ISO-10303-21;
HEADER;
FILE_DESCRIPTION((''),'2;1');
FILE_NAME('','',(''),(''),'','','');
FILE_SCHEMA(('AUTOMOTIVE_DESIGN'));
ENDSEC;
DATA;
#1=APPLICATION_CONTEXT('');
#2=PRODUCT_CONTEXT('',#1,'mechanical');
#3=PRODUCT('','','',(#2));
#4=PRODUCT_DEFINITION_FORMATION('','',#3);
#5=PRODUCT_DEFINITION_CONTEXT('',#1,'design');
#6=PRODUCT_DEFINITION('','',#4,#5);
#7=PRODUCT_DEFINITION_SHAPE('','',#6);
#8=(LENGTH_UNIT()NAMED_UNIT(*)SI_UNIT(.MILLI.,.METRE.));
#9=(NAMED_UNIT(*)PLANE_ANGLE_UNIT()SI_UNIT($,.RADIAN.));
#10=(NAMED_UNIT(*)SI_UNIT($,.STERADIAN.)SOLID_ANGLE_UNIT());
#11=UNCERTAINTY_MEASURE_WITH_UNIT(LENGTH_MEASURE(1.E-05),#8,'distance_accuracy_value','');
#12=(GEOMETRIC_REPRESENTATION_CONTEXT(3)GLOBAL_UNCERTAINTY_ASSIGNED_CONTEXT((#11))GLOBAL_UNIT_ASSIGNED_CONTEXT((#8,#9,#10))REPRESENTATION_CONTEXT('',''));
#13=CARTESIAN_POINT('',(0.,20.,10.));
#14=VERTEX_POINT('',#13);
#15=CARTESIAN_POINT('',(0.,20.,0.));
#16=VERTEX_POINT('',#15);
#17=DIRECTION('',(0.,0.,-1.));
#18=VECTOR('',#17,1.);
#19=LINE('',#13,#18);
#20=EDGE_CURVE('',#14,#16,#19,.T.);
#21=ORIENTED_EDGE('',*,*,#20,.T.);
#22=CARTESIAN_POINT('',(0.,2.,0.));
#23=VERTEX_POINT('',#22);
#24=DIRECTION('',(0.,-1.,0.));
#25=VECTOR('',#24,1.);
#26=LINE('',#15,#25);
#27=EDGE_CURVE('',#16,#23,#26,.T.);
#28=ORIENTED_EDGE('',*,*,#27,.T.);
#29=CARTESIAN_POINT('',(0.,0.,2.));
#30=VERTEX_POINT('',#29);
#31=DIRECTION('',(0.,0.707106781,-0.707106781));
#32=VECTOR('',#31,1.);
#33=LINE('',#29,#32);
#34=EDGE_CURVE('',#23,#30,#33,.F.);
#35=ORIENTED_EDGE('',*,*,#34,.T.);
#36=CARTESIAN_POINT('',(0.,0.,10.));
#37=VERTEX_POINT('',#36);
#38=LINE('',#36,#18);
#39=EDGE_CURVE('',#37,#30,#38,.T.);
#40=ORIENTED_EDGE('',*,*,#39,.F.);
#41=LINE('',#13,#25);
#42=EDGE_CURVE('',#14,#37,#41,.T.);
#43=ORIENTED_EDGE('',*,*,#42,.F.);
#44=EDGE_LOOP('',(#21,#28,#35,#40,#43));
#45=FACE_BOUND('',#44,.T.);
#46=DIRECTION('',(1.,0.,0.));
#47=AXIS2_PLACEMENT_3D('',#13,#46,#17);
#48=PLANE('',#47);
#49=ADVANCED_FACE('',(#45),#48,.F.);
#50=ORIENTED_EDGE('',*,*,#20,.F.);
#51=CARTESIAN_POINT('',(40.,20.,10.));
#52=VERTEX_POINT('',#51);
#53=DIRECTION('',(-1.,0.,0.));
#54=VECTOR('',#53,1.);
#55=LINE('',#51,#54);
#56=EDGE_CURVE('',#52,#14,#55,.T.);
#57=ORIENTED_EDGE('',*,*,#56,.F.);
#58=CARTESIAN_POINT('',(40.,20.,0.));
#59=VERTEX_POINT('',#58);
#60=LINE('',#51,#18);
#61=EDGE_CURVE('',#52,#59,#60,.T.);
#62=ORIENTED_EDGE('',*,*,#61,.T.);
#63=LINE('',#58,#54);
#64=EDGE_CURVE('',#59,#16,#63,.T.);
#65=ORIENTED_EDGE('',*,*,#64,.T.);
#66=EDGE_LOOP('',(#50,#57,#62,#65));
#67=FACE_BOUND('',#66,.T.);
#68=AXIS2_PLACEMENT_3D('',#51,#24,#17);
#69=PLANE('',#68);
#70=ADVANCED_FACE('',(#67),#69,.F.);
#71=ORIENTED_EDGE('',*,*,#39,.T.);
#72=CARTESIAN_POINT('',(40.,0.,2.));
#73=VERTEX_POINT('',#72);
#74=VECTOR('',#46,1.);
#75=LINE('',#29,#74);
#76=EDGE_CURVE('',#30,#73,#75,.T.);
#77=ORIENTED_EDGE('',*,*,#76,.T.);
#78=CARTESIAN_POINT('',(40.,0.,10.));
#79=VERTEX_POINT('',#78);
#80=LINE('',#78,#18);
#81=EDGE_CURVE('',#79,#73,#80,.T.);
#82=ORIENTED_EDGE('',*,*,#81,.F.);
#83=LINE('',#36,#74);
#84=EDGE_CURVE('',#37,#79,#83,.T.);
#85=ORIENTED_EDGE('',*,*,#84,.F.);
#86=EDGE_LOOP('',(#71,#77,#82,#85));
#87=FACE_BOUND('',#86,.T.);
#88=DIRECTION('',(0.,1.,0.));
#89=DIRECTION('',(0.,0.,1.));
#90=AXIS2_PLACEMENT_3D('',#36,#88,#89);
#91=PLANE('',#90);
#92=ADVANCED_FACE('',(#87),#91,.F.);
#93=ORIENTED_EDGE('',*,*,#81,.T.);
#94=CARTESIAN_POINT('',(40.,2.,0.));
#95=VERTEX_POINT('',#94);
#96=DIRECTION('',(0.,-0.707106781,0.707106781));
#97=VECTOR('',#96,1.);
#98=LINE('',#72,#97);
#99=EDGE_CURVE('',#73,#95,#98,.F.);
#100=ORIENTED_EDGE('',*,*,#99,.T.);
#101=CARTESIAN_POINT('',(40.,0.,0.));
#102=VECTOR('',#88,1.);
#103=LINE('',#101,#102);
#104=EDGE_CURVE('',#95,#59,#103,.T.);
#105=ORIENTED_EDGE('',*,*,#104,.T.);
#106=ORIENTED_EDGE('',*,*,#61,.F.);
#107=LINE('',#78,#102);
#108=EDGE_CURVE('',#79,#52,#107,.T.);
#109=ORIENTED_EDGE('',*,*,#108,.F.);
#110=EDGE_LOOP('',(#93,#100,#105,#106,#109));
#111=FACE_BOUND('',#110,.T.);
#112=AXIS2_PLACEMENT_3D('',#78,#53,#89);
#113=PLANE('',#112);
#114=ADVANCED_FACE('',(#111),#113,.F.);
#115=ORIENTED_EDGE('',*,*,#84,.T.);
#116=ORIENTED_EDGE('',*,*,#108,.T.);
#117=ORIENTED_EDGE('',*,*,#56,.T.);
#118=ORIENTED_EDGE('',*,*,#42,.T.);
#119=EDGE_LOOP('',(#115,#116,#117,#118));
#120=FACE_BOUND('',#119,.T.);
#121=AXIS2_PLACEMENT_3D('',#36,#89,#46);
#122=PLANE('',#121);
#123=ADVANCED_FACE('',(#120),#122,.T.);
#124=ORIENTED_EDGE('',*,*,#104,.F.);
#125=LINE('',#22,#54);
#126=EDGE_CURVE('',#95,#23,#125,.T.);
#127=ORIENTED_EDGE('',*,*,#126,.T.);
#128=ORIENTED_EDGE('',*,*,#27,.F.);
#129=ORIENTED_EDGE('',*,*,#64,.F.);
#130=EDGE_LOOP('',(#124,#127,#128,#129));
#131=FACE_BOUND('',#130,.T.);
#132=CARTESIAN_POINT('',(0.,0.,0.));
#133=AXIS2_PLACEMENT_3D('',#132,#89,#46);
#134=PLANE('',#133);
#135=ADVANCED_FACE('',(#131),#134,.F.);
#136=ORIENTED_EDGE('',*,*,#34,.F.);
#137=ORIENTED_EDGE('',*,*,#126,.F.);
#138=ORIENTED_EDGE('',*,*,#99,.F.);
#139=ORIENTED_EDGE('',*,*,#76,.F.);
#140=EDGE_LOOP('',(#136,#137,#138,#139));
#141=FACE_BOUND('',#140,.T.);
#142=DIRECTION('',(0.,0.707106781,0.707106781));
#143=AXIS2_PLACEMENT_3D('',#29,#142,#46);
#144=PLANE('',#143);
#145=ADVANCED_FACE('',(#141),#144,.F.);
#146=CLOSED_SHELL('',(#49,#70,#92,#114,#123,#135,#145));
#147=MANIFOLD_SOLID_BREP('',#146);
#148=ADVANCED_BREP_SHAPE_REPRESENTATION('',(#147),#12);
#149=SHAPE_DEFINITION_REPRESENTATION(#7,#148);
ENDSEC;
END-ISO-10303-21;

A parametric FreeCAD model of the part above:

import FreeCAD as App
import Part
import Sketcher
Q = App.Units.Quantity


def edges_at(feature, points):
    """Names of the edges that pass closest to the given points."""
    edges = feature.Shape.Edges
    near = lambda p: min(range(len(edges)), key=lambda i: edges[i].distToShape(Part.Vertex(*p))[0])
    return sorted({f"Edge{near(p) + 1}" for p in points})


def add_polygon(sketch, points):
    """Adds a closed chain of lines whose ends are joined by coincident constraints."""
    first, n = sketch.GeometryCount, len(points)
    for a, b in zip(points, points[1:] + points[:1]):
        sketch.addGeometry(Part.LineSegment(App.Vector(*a, 0), App.Vector(*b, 0)), False)
    for i in range(n):
        sketch.addConstraint(Sketcher.Constraint("Coincident", first + i, 2, first + (i + 1) % n, 1))

doc = App.newDocument("Part")
params = doc.addObject("Spreadsheet::Sheet", "Params")
for row, (alias, value) in enumerate([
    ("sketch1_width", "40 mm"),
    ("sketch1_height", "20 mm"),
    ("pad1_length", "10 mm"),
    ("chamfer_size", "2 mm"),
], start=1):
    params.set(f"A{row}", alias)
    params.set(f"B{row}", "=" + value)
    params.setAlias(f"B{row}", alias)

body = doc.addObject("PartDesign::Body", "Body")

# Sketch on XY plane
sketch1 = body.newObject("Sketcher::SketchObject", "Sketch")
sketch1.AttachmentSupport = (doc.getObject("XY_Plane"), [""])
sketch1.MapMode = "FlatFace"
add_polygon(sketch1, [(0, 20), (0, 0), (40, 0), (40, 20)])  # lines 0-3
sketch1.addConstraint([
    Sketcher.Constraint("Vertical", 0),
    Sketcher.Constraint("Horizontal", 1),
    Sketcher.Constraint("Vertical", 2),
    Sketcher.Constraint("Horizontal", 3),
    Sketcher.Constraint("Coincident", 0, 2, -1, 1),
    Sketcher.Constraint("DistanceX", 1, 1, 1, 2, Q("40 mm")),
    Sketcher.Constraint("DistanceY", 0, 2, 0, 1, Q("20 mm")),
])
sketch1.setExpression("Constraints[9]", "Params.sketch1_width")
sketch1.setExpression("Constraints[10]", "Params.sketch1_height")
pad1 = body.newObject("PartDesign::Pad", "Pad")
pad1.Profile = sketch1
pad1.setExpression("Length", "Params.pad1_length")
doc.recompute()

chamfer = body.newObject("PartDesign::Chamfer", "Chamfer")
chamfer.Base = (pad1, edges_at(pad1, [(20, 0, 0)]))
chamfer.setExpression("Size", "Params.chamfer_size")

doc.recompute()
